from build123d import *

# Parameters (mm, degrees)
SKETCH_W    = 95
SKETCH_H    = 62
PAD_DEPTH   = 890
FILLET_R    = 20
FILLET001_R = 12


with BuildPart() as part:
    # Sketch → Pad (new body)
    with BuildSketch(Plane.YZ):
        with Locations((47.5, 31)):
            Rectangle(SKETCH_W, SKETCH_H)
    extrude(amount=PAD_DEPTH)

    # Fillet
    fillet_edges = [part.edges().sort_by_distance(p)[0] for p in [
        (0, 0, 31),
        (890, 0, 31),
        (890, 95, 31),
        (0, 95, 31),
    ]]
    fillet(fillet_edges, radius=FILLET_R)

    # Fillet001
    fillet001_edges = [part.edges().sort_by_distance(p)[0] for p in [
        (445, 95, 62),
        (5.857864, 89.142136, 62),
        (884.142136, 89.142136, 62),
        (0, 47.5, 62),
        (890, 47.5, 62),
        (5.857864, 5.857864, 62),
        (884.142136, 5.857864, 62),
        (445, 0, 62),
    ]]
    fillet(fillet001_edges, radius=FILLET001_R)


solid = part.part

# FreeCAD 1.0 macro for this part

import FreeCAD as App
import Part
import Sketcher
from FreeCAD import Vector
Q = App.Units.Quantity


def edges_at(feature, points):
    """Names of the edges that pass closest to the given points."""
    edges = feature.Shape.Edges
    near = lambda p: min(range(len(edges)), key=lambda i: edges[i].distToShape(Part.Vertex(*p))[0])
    return sorted({f"Edge{near(p) + 1}" for p in points})

doc = App.newDocument("Part")
body = doc.addObject("PartDesign::Body", "Body")

# Sketch on YZ plane
sketch1 = doc.addObject("Sketcher::SketchObject", "Sketch")
body.addObject(sketch1)
sketch1.AttachmentSupport = (doc.YZ_Plane, [""])
sketch1.MapMode = "FlatFace"
sketch1.addGeometry([
    Part.LineSegment(Vector(0, 62, 0), Vector(0, 0, 0)),
    Part.LineSegment(Vector(0, 0, 0), Vector(95, 0, 0)),
    Part.LineSegment(Vector(95, 0, 0), Vector(95, 62, 0)),
    Part.LineSegment(Vector(95, 62, 0), Vector(0, 62, 0)),
], False)
sketch1.addConstraint([
    Sketcher.Constraint("Coincident", 0, 2, 1, 1),
    Sketcher.Constraint("Coincident", 1, 2, 2, 1),
    Sketcher.Constraint("Coincident", 2, 2, 3, 1),
    Sketcher.Constraint("Coincident", 3, 2, 0, 1),
    Sketcher.Constraint("Vertical", 0),
    Sketcher.Constraint("Horizontal", 1),
    Sketcher.Constraint("Vertical", 2),
    Sketcher.Constraint("Horizontal", 3),
    Sketcher.Constraint("Coincident", 0, 2, -1, 1),
    Sketcher.Constraint("DistanceX", 1, 1, 1, 2, Q("95 mm")),
    Sketcher.Constraint("DistanceY", 0, 2, 0, 1, Q("62 mm")),
])
pad1 = doc.addObject("PartDesign::Pad", "Pad")
body.addObject(pad1)
pad1.Profile = sketch1
pad1.Length = 890
doc.recompute()

fillet = doc.addObject("PartDesign::Fillet", "Fillet")
body.addObject(fillet)
fillet.Base = (pad1, edges_at(pad1, [
    (0, 0, 31),
    (890, 0, 31),
    (890, 95, 31),
    (0, 95, 31),
]))
fillet.Radius = 20
doc.recompute()

fillet2 = doc.addObject("PartDesign::Fillet", "Fillet001")
body.addObject(fillet2)
fillet2.Base = (fillet, edges_at(fillet, [
    (445, 95, 62),
    (5.858, 89.142, 62),
    (884.142, 89.142, 62),
    (0, 47.5, 62),
    (890, 47.5, 62),
    (5.858, 5.858, 62),
    (884.142, 5.858, 62),
    (445, 0, 62),
]))
fillet2.Radius = 12

doc.recompute()
